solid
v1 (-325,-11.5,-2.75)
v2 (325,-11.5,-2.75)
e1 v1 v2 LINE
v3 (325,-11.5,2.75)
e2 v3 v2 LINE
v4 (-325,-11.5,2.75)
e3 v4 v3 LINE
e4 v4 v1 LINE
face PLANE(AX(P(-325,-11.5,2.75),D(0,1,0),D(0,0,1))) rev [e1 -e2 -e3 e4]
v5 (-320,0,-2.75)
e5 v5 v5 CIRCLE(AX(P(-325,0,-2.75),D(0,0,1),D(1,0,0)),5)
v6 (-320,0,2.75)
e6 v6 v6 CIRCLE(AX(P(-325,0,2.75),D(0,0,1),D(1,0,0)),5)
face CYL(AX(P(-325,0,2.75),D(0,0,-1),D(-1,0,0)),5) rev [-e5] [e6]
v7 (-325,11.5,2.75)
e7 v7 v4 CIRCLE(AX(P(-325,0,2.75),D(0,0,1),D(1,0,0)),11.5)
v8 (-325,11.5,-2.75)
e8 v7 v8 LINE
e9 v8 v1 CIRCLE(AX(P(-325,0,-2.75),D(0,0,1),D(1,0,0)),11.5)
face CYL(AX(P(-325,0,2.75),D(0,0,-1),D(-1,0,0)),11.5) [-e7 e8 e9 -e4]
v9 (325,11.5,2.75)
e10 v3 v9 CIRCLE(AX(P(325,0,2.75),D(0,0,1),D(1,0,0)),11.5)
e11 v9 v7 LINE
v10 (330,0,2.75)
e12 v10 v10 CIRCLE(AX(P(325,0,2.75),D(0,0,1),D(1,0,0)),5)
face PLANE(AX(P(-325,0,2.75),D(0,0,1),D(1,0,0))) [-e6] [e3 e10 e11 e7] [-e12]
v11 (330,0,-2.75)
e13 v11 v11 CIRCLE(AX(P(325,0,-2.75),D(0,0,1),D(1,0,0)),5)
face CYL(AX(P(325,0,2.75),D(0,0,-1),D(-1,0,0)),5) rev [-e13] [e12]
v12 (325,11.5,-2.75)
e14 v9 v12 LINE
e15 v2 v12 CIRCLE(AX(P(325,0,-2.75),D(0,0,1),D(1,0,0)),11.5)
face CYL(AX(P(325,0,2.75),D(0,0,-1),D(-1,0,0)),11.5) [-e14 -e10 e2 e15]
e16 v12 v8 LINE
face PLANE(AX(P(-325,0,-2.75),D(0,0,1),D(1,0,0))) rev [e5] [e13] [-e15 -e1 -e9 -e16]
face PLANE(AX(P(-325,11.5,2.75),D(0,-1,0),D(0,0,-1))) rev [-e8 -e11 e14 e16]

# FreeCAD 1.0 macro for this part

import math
import FreeCAD as App
import Part
import Sketcher
from FreeCAD import Vector
Q = App.Units.Quantity

doc = App.newDocument("Part")
params = doc.addObject("Spreadsheet::Sheet", "Params")
for row, (alias, value) in enumerate([
    ("sketch1_diameter", "10 mm"),
    ("sketch1_radius", "11.5 mm"),
    ("sketch1_width", "650 mm"),
    ("pad1_length", "5.5 mm"),
], start=1):
    params.set(f"A{row}", alias)
    params.set(f"B{row}", "=" + value)
    params.setAlias(f"B{row}", alias)

body = doc.addObject("PartDesign::Body", "Body")

sketch1 = doc.addObject("Sketcher::SketchObject", "Sketch")
body.addObject(sketch1)
sketch1.AttachmentSupport = (doc.XY_Plane, [""])
sketch1.MapMode = "FlatFace"
sketch1.addGeometry(Part.LineSegment(Vector(325, 12, 0), Vector(-325, 12, 0)), False)
sketch1.addGeometry(Part.ArcOfCircle(Part.Circle(Vector(-325, 0, 0), Vector(0, 0, 1), 12), math.radians(90), math.radians(270)), False)
sketch1.addGeometry(Part.LineSegment(Vector(-325, -12, 0), Vector(325, -12, 0)), False)
sketch1.addGeometry(Part.ArcOfCircle(Part.Circle(Vector(325, 0, 0), Vector(0, 0, 1), 12), math.radians(-90), math.radians(90)), False)
sketch1.addGeometry(Part.Circle(Vector(325, 0, 0), Vector(0, 0, 1), 5), False)
sketch1.addGeometry(Part.Circle(Vector(-325, 0, 0), Vector(0, 0, 1), 5), False)
sketch1.addConstraint(Sketcher.Constraint("Tangent", 0, 2, 1, 1))
sketch1.addConstraint(Sketcher.Constraint("Tangent", 1, 2, 2, 1))
sketch1.addConstraint(Sketcher.Constraint("Tangent", 2, 2, 3, 1))
sketch1.addConstraint(Sketcher.Constraint("Tangent", 3, 2, 0, 1))
sketch1.addConstraint(Sketcher.Constraint("Horizontal", 0))
sketch1.addConstraint(Sketcher.Constraint("Horizontal", 2))
sketch1.addConstraint(Sketcher.Constraint("Coincident", 4, 3, 3, 3))
sketch1.addConstraint(Sketcher.Constraint("Coincident", 5, 3, 1, 3))
sketch1.addConstraint(Sketcher.Constraint("Equal", 4, 5))
sketch1.addConstraint(Sketcher.Constraint("Symmetric", 1, 3, 3, 3, -1, 1))
sketch1.addConstraint(Sketcher.Constraint("Diameter", 4, Q("10 mm")))
sketch1.addConstraint(Sketcher.Constraint("Radius", 1, Q("11.5 mm")))
sketch1.addConstraint(Sketcher.Constraint("DistanceX", 0, 2, 0, 1, Q("650 mm")))
sketch1.setExpression("Constraints[10]", "Params.sketch1_diameter")
sketch1.setExpression("Constraints[11]", "Params.sketch1_radius")
sketch1.setExpression("Constraints[12]", "Params.sketch1_width")
pad1 = doc.addObject("PartDesign::Pad", "Pad")
body.addObject(pad1)
pad1.Profile = sketch1
pad1.setExpression("Length", "Params.pad1_length")
pad1.Midplane = True

doc.recompute()
